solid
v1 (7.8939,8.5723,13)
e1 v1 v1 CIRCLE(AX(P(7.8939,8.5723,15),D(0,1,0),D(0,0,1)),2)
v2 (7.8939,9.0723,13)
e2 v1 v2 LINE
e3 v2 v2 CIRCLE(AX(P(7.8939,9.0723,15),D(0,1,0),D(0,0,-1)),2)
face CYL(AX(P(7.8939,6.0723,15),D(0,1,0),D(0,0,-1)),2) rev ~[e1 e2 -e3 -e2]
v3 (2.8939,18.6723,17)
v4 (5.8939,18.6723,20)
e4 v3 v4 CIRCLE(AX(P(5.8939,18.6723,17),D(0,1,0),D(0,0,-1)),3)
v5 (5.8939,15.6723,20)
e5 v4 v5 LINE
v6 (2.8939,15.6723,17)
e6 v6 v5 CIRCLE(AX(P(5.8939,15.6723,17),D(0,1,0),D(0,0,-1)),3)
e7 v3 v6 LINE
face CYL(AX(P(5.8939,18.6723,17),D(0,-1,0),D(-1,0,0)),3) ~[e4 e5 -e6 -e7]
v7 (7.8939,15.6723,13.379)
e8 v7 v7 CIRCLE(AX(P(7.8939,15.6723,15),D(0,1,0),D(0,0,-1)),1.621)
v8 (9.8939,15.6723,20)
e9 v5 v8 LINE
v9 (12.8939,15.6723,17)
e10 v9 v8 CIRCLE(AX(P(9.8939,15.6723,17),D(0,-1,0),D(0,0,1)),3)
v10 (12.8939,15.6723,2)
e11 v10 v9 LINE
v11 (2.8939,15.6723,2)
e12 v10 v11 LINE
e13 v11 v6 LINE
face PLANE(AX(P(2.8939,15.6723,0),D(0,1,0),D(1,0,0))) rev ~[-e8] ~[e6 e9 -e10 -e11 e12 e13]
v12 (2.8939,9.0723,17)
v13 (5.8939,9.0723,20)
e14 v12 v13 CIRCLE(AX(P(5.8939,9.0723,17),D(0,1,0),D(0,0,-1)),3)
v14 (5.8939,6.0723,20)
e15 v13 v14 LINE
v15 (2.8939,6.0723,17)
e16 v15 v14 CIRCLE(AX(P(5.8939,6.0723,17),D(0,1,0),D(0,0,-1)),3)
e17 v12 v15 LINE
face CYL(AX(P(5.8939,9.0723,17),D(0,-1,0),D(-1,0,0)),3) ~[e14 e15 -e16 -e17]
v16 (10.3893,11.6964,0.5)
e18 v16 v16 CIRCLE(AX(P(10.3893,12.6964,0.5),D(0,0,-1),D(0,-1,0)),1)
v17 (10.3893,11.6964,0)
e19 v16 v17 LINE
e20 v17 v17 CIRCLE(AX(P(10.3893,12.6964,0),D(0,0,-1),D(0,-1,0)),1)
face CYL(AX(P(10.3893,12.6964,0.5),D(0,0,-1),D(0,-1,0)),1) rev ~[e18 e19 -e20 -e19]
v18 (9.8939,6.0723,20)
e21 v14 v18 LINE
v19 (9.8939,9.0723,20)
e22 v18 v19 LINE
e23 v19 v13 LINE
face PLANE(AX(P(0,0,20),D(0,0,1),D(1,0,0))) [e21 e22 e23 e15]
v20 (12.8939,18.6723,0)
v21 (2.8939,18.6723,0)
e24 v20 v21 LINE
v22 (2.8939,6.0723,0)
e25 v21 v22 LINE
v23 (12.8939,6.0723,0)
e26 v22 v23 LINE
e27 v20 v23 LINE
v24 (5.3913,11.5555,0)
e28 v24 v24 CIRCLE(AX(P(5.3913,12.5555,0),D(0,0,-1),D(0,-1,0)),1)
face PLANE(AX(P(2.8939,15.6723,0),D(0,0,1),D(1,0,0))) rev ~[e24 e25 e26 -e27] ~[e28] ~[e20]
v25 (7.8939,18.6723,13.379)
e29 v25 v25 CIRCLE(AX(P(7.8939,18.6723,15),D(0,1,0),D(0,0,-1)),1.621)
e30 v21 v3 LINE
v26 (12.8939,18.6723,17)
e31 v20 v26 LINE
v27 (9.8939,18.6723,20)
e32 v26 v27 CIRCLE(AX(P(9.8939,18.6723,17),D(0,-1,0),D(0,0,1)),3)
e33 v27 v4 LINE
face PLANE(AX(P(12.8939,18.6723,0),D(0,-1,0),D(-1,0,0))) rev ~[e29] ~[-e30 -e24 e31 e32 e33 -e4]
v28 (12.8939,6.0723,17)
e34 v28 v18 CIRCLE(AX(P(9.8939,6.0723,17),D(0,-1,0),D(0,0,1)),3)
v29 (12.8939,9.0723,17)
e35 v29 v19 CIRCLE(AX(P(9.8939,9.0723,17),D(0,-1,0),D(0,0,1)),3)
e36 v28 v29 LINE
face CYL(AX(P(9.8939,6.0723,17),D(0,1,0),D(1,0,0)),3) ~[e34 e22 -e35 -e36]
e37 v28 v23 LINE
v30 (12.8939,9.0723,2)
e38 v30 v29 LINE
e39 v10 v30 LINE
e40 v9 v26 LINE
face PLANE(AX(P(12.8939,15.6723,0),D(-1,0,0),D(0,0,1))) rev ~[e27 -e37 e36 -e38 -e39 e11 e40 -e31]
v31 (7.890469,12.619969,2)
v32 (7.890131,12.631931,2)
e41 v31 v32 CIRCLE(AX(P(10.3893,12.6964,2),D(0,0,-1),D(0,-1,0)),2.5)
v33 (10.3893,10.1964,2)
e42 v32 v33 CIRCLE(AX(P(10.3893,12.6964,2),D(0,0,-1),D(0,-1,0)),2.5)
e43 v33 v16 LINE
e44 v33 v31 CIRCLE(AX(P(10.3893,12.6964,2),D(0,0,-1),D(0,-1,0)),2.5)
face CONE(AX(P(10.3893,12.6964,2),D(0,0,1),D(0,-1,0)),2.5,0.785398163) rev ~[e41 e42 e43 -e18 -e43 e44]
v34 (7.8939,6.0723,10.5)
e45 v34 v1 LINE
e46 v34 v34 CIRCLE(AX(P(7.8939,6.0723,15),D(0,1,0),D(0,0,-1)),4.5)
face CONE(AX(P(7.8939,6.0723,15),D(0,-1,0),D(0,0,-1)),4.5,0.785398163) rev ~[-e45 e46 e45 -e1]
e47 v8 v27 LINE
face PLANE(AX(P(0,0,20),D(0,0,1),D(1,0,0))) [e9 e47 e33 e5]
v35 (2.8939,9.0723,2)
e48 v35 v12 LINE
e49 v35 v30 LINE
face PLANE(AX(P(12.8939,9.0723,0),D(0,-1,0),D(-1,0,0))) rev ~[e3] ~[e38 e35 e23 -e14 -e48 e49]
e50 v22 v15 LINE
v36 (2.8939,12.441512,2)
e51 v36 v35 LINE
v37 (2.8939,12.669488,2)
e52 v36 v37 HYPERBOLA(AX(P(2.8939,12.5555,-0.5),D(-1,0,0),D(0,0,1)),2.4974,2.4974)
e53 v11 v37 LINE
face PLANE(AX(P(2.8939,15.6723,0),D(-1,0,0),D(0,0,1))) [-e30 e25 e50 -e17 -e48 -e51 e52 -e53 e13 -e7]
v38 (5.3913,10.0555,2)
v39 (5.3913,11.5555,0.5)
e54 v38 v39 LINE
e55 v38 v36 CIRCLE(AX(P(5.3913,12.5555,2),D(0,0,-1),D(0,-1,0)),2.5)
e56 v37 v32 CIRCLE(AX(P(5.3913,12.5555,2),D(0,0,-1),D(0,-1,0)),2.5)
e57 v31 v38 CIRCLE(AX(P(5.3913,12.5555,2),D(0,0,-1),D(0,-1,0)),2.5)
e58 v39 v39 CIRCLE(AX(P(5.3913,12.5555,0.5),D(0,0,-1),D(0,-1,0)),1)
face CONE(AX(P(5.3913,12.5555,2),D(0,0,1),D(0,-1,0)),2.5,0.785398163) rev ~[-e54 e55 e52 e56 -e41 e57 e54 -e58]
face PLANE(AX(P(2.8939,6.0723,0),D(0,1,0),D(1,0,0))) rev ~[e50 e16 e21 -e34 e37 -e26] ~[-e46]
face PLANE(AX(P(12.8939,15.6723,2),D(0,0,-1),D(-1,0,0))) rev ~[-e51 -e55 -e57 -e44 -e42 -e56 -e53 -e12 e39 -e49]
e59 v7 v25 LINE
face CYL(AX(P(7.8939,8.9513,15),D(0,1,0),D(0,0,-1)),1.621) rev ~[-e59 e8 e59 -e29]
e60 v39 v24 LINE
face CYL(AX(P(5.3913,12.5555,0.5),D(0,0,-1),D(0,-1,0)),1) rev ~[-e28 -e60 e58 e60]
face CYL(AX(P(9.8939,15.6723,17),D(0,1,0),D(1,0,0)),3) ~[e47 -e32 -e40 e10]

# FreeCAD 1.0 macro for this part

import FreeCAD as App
import Part
import Sketcher
from FreeCAD import Vector
Q = App.Units.Quantity


def edges_at(feature, points):
    """Names of the edges that pass closest to the given points."""
    edges = feature.Shape.Edges
    near = lambda p: min(range(len(edges)), key=lambda i: edges[i].distToShape(Part.Vertex(*p))[0])
    return sorted({f"Edge{near(p) + 1}" for p in points})

doc = App.newDocument("Part")
body = doc.addObject("PartDesign::Body", "Body")
body.AllowCompound = True

sketch1 = body.newObject("Sketcher::SketchObject", "Sketch")
sketch1.AttachmentSupport = (doc.getObject("XY_Plane"), [""])
sketch1.MapMode = "FlatFace"
sketch1.addGeometry([
    Part.LineSegment(Vector(12.9, 15.7, 0), Vector(12.9, 18.7, 0)),
    Part.LineSegment(Vector(12.9, 18.7, 0), Vector(2.9, 18.7, 0)),
    Part.LineSegment(Vector(2.9, 18.7, 0), Vector(2.9, 15.7, 0)),
    Part.LineSegment(Vector(2.9, 15.7, 0), Vector(12.9, 15.7, 0)),
    Part.LineSegment(Vector(12.9, 6.1, 0), Vector(12.9, 9.1, 0)),
    Part.LineSegment(Vector(12.9, 9.1, 0), Vector(2.9, 9.1, 0)),
    Part.LineSegment(Vector(2.9, 9.1, 0), Vector(2.9, 6.1, 0)),
    Part.LineSegment(Vector(2.9, 6.1, 0), Vector(12.9, 6.1, 0)),
], False)
sketch1.addConstraint([
    Sketcher.Constraint("Coincident", 0, 2, 1, 1),
    Sketcher.Constraint("Coincident", 1, 2, 2, 1),
    Sketcher.Constraint("Coincident", 2, 2, 3, 1),
    Sketcher.Constraint("Coincident", 3, 2, 0, 1),
    Sketcher.Constraint("Coincident", 4, 2, 5, 1),
    Sketcher.Constraint("Coincident", 5, 2, 6, 1),
    Sketcher.Constraint("Coincident", 6, 2, 7, 1),
    Sketcher.Constraint("Coincident", 7, 2, 4, 1),
    Sketcher.Constraint("Vertical", 0),
    Sketcher.Constraint("Horizontal", 1),
    Sketcher.Constraint("Vertical", 2),
    Sketcher.Constraint("Horizontal", 3),
    Sketcher.Constraint("Vertical", 4),
    Sketcher.Constraint("Horizontal", 5),
    Sketcher.Constraint("Vertical", 6),
    Sketcher.Constraint("Horizontal", 7),
    Sketcher.Constraint("Vertical", 3, 2, 4, 2),
    Sketcher.Constraint("Vertical", 2, 2, 5, 2),
    Sketcher.Constraint("Equal", 2, 4),
    Sketcher.Constraint("DistanceX", 1, 2, 1, 1, Q("10 mm")),
    Sketcher.Constraint("DistanceY", 0, 1, 0, 2, Q("3 mm")),
    Sketcher.Constraint("DistanceY", 4, 2, 3, 2, Q("6.6 mm")),
    Sketcher.Constraint("DistanceX", -1, 1, 0, 2, Q("12.894 mm")),
    Sketcher.Constraint("DistanceY", -1, 1, 0, 2, Q("18.6723 mm")),
])
pad1 = body.newObject("PartDesign::Pad", "Pad")
pad1.Profile = sketch1
pad1.Length = 20
doc.recompute()

fillet = body.newObject("PartDesign::Fillet", "Fillet")
fillet.Base = (pad1, edges_at(pad1, [
    (12.894, 7.572, 20),
    (12.894, 17.172, 20),
    (2.894, 17.172, 20),
    (2.894, 7.572, 20),
]))
fillet.Radius = 3

sketch2 = body.newObject("Sketcher::SketchObject", "Sketch001")
sketch2.AttachmentSupport = (doc.getObject("XZ_Plane"), [""])
sketch2.MapMode = "FlatFace"
sketch2.AttachmentOffset = App.Placement(Vector(0, 0, -6.0723), App.Rotation())
sketch2.addGeometry(Part.Circle(Vector(7.9, 15, 0), Vector(0, 0, 1), 1.6), False)
sketch2.addConstraint([
    Sketcher.Constraint("Diameter", 0, Q("3.242 mm")),
    Sketcher.Constraint("DistanceY", -1, 1, 0, 3, Q("15 mm")),
    Sketcher.Constraint("DistanceX", -1, 1, 0, 3, Q("7.894 mm")),
])
doc.recompute()
hole = body.newObject("PartDesign::Hole", "Hole")
hole.Profile = sketch2
hole.ThreadType = "None"
hole.Diameter = 3.242
hole.DepthType = "ThroughAll"
hole.HoleCutType = "Countersink"
hole.HoleCutDiameter = 9
hole.HoleCutCountersinkAngle = 90

sketch3 = body.newObject("Sketcher::SketchObject", "Sketch002")
sketch3.AttachmentSupport = (doc.getObject("XZ_Plane"), [""])
sketch3.MapMode = "FlatFace"
sketch3.AttachmentOffset = App.Placement(Vector(0, 0, -15.6723), App.Rotation())
sketch3.addGeometry([
    Part.LineSegment(Vector(2.9, 2, 0), Vector(2.9, 0, 0)),
    Part.LineSegment(Vector(2.9, 0, 0), Vector(12.9, 0, 0)),
    Part.LineSegment(Vector(12.9, 0, 0), Vector(12.9, 2, 0)),
    Part.LineSegment(Vector(12.9, 2, 0), Vector(2.9, 2, 0)),
], False)
sketch3.addConstraint([
    Sketcher.Constraint("Coincident", 0, 2, 1, 1),
    Sketcher.Constraint("Coincident", 1, 2, 2, 1),
    Sketcher.Constraint("Coincident", 2, 2, 3, 1),
    Sketcher.Constraint("Coincident", 3, 2, 0, 1),
    Sketcher.Constraint("Vertical", 0),
    Sketcher.Constraint("Horizontal", 1),
    Sketcher.Constraint("Vertical", 2),
    Sketcher.Constraint("Horizontal", 3),
    Sketcher.Constraint("PointOnObject", 0, 2, -1),
    Sketcher.Constraint("DistanceY", 0, 2, 0, 1, Q("2 mm")),
    Sketcher.Constraint("DistanceX", 1, 1, 1, 2, Q("10 mm")),
    Sketcher.Constraint("DistanceX", -1, 1, 0, 2, Q("2.894 mm")),
])
pad2 = body.newObject("PartDesign::Pad", "Pad001")
pad2.Profile = sketch3
pad2.Type = "UpToLast"

sketch4 = body.newObject("Sketcher::SketchObject", "Sketch003")
sketch4.AttachmentSupport = (doc.getObject("XY_Plane"), [""])
sketch4.MapMode = "FlatFace"
sketch4.AttachmentOffset = App.Placement(Vector(0, 0, 2), App.Rotation())
sketch4.addGeometry([
    Part.Circle(Vector(10.4, 12.7, 0), Vector(0, 0, 1), 1),
    Part.Circle(Vector(5.4, 12.6, 0), Vector(0, 0, 1), 1),
], False)
sketch4.addConstraint([
    Sketcher.Constraint("Equal", 0, 1),
    Sketcher.Constraint("Diameter", 0, Q("2 mm")),
    Sketcher.Constraint("DistanceX", 1, 3, 0, 3, Q("4.998 mm")),
    Sketcher.Constraint("DistanceY", 1, 3, 0, 3, Q("0.141 mm")),
    Sketcher.Constraint("DistanceX", -1, 1, 0, 3, Q("10.3893 mm")),
    Sketcher.Constraint("DistanceY", -1, 1, 0, 3, Q("12.6964 mm")),
])
doc.recompute()
hole2 = body.newObject("PartDesign::Hole", "Hole001")
hole2.Profile = sketch4
hole2.ThreadType = "None"
hole2.Diameter = 2
hole2.DepthType = "ThroughAll"
hole2.HoleCutType = "Countersink"
hole2.HoleCutDiameter = 5
hole2.HoleCutCountersinkAngle = 90

sketch5 = body.newObject("Sketcher::SketchObject", "Sketch004")
sketch5.AttachmentSupport = (doc.getObject("XZ_Plane"), [""])
sketch5.MapMode = "FlatFace"
sketch5.AttachmentOffset = App.Placement(Vector(0, 0, -6.0723), App.Rotation())
sketch5.addGeometry(Part.Circle(Vector(7.9, 15, 0), Vector(0, 0, 1), 2), False)
sketch5.addConstraint([
    Sketcher.Constraint("Diameter", 0, Q("4 mm")),
    Sketcher.Constraint("DistanceY", -1, 1, 0, 3, Q("15 mm")),
    Sketcher.Constraint("DistanceX", -1, 1, 0, 3, Q("7.894 mm")),
])
doc.recompute()
hole3 = body.newObject("PartDesign::Hole", "Hole002")
hole3.Profile = sketch5
hole3.ThreadType = "None"
hole3.Diameter = 4
hole3.DepthType = "Dimension"
hole3.Depth = 3
hole3.DrillPoint = "Flat"

doc.recompute()
